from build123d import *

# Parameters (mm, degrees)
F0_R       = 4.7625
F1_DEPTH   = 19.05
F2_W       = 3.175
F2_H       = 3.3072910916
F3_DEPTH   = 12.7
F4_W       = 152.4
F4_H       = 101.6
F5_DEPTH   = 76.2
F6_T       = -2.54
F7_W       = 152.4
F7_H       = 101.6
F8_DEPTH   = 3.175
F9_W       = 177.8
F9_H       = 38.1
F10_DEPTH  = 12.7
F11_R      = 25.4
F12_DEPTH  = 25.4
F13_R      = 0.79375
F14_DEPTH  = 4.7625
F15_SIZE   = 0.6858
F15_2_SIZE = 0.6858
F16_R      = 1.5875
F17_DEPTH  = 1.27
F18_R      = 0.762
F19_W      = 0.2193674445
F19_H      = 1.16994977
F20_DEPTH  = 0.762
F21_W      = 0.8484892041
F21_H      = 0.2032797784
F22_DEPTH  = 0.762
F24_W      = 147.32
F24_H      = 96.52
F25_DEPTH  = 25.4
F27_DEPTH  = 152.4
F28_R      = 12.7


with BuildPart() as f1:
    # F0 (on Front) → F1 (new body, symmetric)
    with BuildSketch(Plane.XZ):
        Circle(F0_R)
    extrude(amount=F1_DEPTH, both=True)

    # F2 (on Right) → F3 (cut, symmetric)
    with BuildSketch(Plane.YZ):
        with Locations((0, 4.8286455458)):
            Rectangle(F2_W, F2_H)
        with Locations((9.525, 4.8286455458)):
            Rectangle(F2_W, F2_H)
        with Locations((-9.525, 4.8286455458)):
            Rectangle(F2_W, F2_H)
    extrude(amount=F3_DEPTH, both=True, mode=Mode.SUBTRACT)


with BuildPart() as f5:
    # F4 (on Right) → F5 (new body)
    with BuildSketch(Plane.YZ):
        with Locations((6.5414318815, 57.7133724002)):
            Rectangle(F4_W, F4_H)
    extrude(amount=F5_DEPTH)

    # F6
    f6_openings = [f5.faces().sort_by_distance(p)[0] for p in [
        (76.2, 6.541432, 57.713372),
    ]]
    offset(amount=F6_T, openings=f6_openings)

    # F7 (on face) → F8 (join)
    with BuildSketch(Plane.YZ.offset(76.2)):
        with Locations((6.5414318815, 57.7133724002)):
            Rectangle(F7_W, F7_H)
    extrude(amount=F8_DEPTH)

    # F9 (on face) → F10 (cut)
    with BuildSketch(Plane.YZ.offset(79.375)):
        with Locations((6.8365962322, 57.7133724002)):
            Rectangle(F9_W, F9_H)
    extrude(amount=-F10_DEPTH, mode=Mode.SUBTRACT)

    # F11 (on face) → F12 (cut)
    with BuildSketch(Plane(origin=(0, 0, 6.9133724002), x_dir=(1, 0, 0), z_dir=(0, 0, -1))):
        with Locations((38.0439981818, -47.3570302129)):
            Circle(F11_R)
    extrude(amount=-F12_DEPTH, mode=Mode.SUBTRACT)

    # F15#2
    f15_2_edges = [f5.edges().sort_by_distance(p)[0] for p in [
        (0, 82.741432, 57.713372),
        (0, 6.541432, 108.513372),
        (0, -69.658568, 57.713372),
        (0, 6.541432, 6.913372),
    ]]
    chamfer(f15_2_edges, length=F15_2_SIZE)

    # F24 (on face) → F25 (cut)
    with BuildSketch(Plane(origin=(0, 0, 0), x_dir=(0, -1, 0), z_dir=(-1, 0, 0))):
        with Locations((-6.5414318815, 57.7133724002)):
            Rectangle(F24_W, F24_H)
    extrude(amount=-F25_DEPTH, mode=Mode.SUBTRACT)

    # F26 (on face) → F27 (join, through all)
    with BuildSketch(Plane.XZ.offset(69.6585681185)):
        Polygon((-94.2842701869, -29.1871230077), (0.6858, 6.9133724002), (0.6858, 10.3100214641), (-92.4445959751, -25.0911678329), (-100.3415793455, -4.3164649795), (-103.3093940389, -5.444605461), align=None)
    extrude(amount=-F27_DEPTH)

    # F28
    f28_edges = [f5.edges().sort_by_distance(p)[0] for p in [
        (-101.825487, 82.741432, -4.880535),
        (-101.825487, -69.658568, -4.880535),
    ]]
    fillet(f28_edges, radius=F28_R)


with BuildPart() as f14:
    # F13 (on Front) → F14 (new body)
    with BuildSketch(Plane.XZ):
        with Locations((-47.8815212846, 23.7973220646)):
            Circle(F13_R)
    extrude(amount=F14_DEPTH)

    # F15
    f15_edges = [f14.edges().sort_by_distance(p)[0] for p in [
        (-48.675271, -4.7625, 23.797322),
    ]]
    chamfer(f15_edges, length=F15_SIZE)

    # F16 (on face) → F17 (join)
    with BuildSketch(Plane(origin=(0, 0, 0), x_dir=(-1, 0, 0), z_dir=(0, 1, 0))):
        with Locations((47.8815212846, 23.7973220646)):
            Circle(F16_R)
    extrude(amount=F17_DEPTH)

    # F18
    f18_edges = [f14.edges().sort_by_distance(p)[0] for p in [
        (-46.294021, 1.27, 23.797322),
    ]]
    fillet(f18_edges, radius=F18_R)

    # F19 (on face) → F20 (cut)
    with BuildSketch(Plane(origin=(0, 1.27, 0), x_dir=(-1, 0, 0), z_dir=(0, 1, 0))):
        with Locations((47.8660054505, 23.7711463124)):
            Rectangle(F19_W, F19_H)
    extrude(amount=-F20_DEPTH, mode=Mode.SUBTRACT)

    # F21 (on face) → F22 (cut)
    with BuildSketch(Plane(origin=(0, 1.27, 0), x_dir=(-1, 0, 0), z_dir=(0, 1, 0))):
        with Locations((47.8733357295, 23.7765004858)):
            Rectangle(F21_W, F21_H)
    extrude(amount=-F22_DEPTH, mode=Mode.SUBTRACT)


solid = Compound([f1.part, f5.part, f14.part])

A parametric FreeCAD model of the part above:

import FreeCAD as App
import Part
import Sketcher

V = App.Vector
Q = App.Units.Quantity


def edges_at(feature, points):
    """Names of the edges that pass closest to the given points."""
    edges = feature.Shape.Edges
    near = lambda p: min(range(len(edges)), key=lambda i: edges[i].distToShape(Part.Vertex(*p))[0])
    return sorted({f"Edge{near(p) + 1}" for p in points})


def faces_at(feature, points):
    """Names of the faces that lie closest to the given points."""
    faces = feature.Shape.Faces
    near = lambda p: min(range(len(faces)), key=lambda i: faces[i].distToShape(Part.Vertex(*p))[0])
    return sorted({f"Face{near(p) + 1}" for p in points})

doc = App.newDocument("Part")
body = doc.addObject("PartDesign::Body", "Body")

sketch1 = body.newObject("Sketcher::SketchObject", "Sketch")
sketch1.AttachmentSupport = (doc.getObject("XZ_Plane"), [""])
sketch1.MapMode = "FlatFace"
sketch1.addGeometry(Part.Circle(V(0, 0, 0), V(0, 0, 1), 4.8), False)
sketch1.addConstraint([
    Sketcher.Constraint("Coincident", 0, 3, -1, 1),
    Sketcher.Constraint("Diameter", 0, Q("0.375 in")),
])
pad1 = body.newObject("PartDesign::Pad", "Pad")
pad1.Profile = sketch1
pad1.Length = Q("1.5 in")
pad1.Midplane = True

sketch2 = body.newObject("Sketcher::SketchObject", "Sketch001")
sketch2.AttachmentSupport = (doc.getObject("YZ_Plane"), [""])
sketch2.MapMode = "FlatFace"
sketch2.addGeometry([
    Part.LineSegment(V(-1.6, 6.5, 0), V(-1.6, 3.2, 0)),
    Part.LineSegment(V(-1.6, 3.2, 0), V(1.6, 3.2, 0)),
    Part.LineSegment(V(1.6, 3.2, 0), V(1.6, 6.5, 0)),
    Part.LineSegment(V(1.6, 6.5, 0), V(-1.6, 6.5, 0)),
    Part.LineSegment(V(7.9, 6.5, 0), V(7.9, 3.2, 0)),
    Part.LineSegment(V(7.9, 3.2, 0), V(11.1, 3.2, 0)),
    Part.LineSegment(V(11.1, 3.2, 0), V(11.1, 6.5, 0)),
    Part.LineSegment(V(11.1, 6.5, 0), V(7.9, 6.5, 0)),
    Part.LineSegment(V(-11.1, 6.5, 0), V(-11.1, 3.2, 0)),
    Part.LineSegment(V(-11.1, 3.2, 0), V(-7.9, 3.2, 0)),
    Part.LineSegment(V(-7.9, 3.2, 0), V(-7.9, 6.5, 0)),
    Part.LineSegment(V(-7.9, 6.5, 0), V(-11.1, 6.5, 0)),
], False)
sketch2.addConstraint([
    Sketcher.Constraint("Coincident", 0, 2, 1, 1),
    Sketcher.Constraint("Coincident", 1, 2, 2, 1),
    Sketcher.Constraint("Coincident", 2, 2, 3, 1),
    Sketcher.Constraint("Coincident", 3, 2, 0, 1),
    Sketcher.Constraint("Coincident", 4, 2, 5, 1),
    Sketcher.Constraint("Coincident", 5, 2, 6, 1),
    Sketcher.Constraint("Coincident", 6, 2, 7, 1),
    Sketcher.Constraint("Coincident", 7, 2, 4, 1),
    Sketcher.Constraint("Coincident", 8, 2, 9, 1),
    Sketcher.Constraint("Coincident", 9, 2, 10, 1),
    Sketcher.Constraint("Coincident", 10, 2, 11, 1),
    Sketcher.Constraint("Coincident", 11, 2, 8, 1),
    Sketcher.Constraint("Vertical", 0),
    Sketcher.Constraint("Horizontal", 1),
    Sketcher.Constraint("Vertical", 2),
    Sketcher.Constraint("Horizontal", 3),
    Sketcher.Constraint("Vertical", 4),
    Sketcher.Constraint("Horizontal", 5),
    Sketcher.Constraint("Vertical", 6),
    Sketcher.Constraint("Horizontal", 7),
    Sketcher.Constraint("Vertical", 8),
    Sketcher.Constraint("Horizontal", 9),
    Sketcher.Constraint("Vertical", 10),
    Sketcher.Constraint("Horizontal", 11),
    Sketcher.Constraint("Symmetric", 5, 2, 8, 2, -2),
    Sketcher.Constraint("Symmetric", 7, 2, 10, 2, -2),
    Sketcher.Constraint("Horizontal", 1, 2, 4, 2),
    Sketcher.Constraint("Horizontal", 3, 2, 6, 2),
    Sketcher.Constraint("Equal", 3, 5),
    Sketcher.Constraint("DistanceX", 0, 2, 5, 2, Q("0.5 in")),
    Sketcher.Constraint("DistanceX", 8, 2, 1, 2, Q("0.5 in")),
    Sketcher.Constraint("DistanceX", 1, 1, 1, 2, Q("0.125 in")),
    Sketcher.Constraint("DistanceY", -1, 1, 0, 2, Q("0.125 in")),
    Sketcher.Constraint("DistanceY", 0, 2, 0, 1, Q("3.307291 mm")),
])
pocket1 = body.newObject("PartDesign::Pocket", "Pocket")
pocket1.Profile = sketch2
pocket1.Length = Q("1 in")
pocket1.Midplane = True
body2 = doc.addObject("PartDesign::Body", "Body001")

sketch3 = body2.newObject("Sketcher::SketchObject", "Sketch002")
sketch3.AttachmentSupport = (doc.getObject("YZ_Plane001"), [""])
sketch3.MapMode = "FlatFace"
sketch3.addGeometry([
    Part.LineSegment(V(-70, 109, 0), V(-70, 7, 0)),
    Part.LineSegment(V(-70, 7, 0), V(83, 7, 0)),
    Part.LineSegment(V(83, 7, 0), V(83, 109, 0)),
    Part.LineSegment(V(83, 109, 0), V(-70, 109, 0)),
], False)
sketch3.addConstraint([
    Sketcher.Constraint("Coincident", 0, 2, 1, 1),
    Sketcher.Constraint("Coincident", 1, 2, 2, 1),
    Sketcher.Constraint("Coincident", 2, 2, 3, 1),
    Sketcher.Constraint("Coincident", 3, 2, 0, 1),
    Sketcher.Constraint("Vertical", 0),
    Sketcher.Constraint("Horizontal", 1),
    Sketcher.Constraint("Vertical", 2),
    Sketcher.Constraint("Horizontal", 3),
    Sketcher.Constraint("DistanceX", 1, 1, 1, 2, Q("6 in")),
    Sketcher.Constraint("DistanceY", 0, 2, 0, 1, Q("4 in")),
    Sketcher.Constraint("DistanceX", 0, 2, -1, 1, Q("69.658568 mm")),
    Sketcher.Constraint("DistanceY", -1, 1, 0, 2, Q("6.913372 mm")),
])
pad2 = body2.newObject("PartDesign::Pad", "Pad001")
pad2.Profile = sketch3
pad2.Length = Q("3 in")
doc.recompute()

thickness = body2.newObject("PartDesign::Thickness", "Thickness")
thickness.Base = (pad2, faces_at(pad2, [(76.2, 6.541, 57.713)]))
thickness.Value = Q("0.1 in")
thickness.Reversed = True
thickness.Join = "Arc"

sketch4 = body2.newObject("Sketcher::SketchObject", "Sketch003")
sketch4.AttachmentSupport = (doc.getObject("YZ_Plane001"), [""])
sketch4.MapMode = "FlatFace"
sketch4.AttachmentOffset = App.Placement(V(0, 0, 3 * 25.4), App.Rotation())
sketch4.addGeometry([
    Part.LineSegment(V(-70, 109, 0), V(-70, 7, 0)),
    Part.LineSegment(V(-70, 7, 0), V(83, 7, 0)),
    Part.LineSegment(V(83, 7, 0), V(83, 109, 0)),
    Part.LineSegment(V(83, 109, 0), V(-70, 109, 0)),
], False)
sketch4.addConstraint([
    Sketcher.Constraint("Coincident", 0, 2, 1, 1),
    Sketcher.Constraint("Coincident", 1, 2, 2, 1),
    Sketcher.Constraint("Coincident", 2, 2, 3, 1),
    Sketcher.Constraint("Coincident", 3, 2, 0, 1),
    Sketcher.Constraint("Vertical", 0),
    Sketcher.Constraint("Horizontal", 1),
    Sketcher.Constraint("Vertical", 2),
    Sketcher.Constraint("Horizontal", 3),
    Sketcher.Constraint("DistanceX", 1, 1, 1, 2, Q("6 in")),
    Sketcher.Constraint("DistanceY", 0, 2, 0, 1, Q("4 in")),
    Sketcher.Constraint("DistanceX", 0, 2, -1, 1, Q("69.658568 mm")),
    Sketcher.Constraint("DistanceY", -1, 1, 0, 2, Q("6.913372 mm")),
])
pad3 = body2.newObject("PartDesign::Pad", "Pad002")
pad3.Profile = sketch4
pad3.Length = Q("0.125 in")

sketch5 = body2.newObject("Sketcher::SketchObject", "Sketch004")
sketch5.AttachmentSupport = (doc.getObject("YZ_Plane001"), [""])
sketch5.MapMode = "FlatFace"
sketch5.AttachmentOffset = App.Placement(V(0, 0, 3.125 * 25.4), App.Rotation())
sketch5.addGeometry([
    Part.LineSegment(V(-82, 77, 0), V(-82, 39, 0)),
    Part.LineSegment(V(-82, 39, 0), V(96, 39, 0)),
    Part.LineSegment(V(96, 39, 0), V(96, 77, 0)),
    Part.LineSegment(V(96, 77, 0), V(-82, 77, 0)),
], False)
sketch5.addConstraint([
    Sketcher.Constraint("Coincident", 0, 2, 1, 1),
    Sketcher.Constraint("Coincident", 1, 2, 2, 1),
    Sketcher.Constraint("Coincident", 2, 2, 3, 1),
    Sketcher.Constraint("Coincident", 3, 2, 0, 1),
    Sketcher.Constraint("Vertical", 0),
    Sketcher.Constraint("Horizontal", 1),
    Sketcher.Constraint("Vertical", 2),
    Sketcher.Constraint("Horizontal", 3),
    Sketcher.Constraint("DistanceX", 1, 1, 1, 2, Q("7 in")),
    Sketcher.Constraint("DistanceY", 0, 2, 0, 1, Q("1.5 in")),
    Sketcher.Constraint("DistanceX", 0, 2, -1, 1, Q("82.063404 mm")),
    Sketcher.Constraint("DistanceY", -1, 1, 0, 2, Q("38.663372 mm")),
])
pocket2 = body2.newObject("PartDesign::Pocket", "Pocket001")
pocket2.Profile = sketch5
pocket2.Length = Q("0.5 in")

sketch6 = body2.newObject("Sketcher::SketchObject", "Sketch005")
sketch6.AttachmentSupport = (doc.getObject("XY_Plane001"), [""])
sketch6.MapMode = "FlatFace"
sketch6.AttachmentOffset = App.Placement(V(0, 0, 6.913372), App.Rotation())
sketch6.addGeometry(Part.Circle(V(38, 47, 0), V(0, 0, 1), 25), False)
sketch6.addConstraint([
    Sketcher.Constraint("Diameter", 0, Q("2 in")),
    Sketcher.Constraint("DistanceX", -1, 1, 0, 3, Q("38.043998 mm")),
    Sketcher.Constraint("DistanceY", -1, 1, 0, 3, Q("47.35703 mm")),
])
pocket3 = body2.newObject("PartDesign::Pocket", "Pocket002")
pocket3.Profile = sketch6
pocket3.Length = Q("1 in")
pocket3.Reversed = True
doc.recompute()

chamfer = body2.newObject("PartDesign::Chamfer", "Chamfer")
chamfer.Base = (pocket3, edges_at(pocket3, [
    (0, 82.741, 57.713),
    (0, 6.541, 108.513),
    (0, -69.659, 57.713),
    (0, 6.541, 6.913),
]))
chamfer.Size = Q("0.027 in")

sketch7 = body2.newObject("Sketcher::SketchObject", "Sketch006")
sketch7.AttachmentSupport = (doc.getObject("YZ_Plane001"), [""])
sketch7.MapMode = "FlatFace"
sketch7.addGeometry([
    Part.LineSegment(V(80, 106, 0), V(80, 9, 0)),
    Part.LineSegment(V(80, 9, 0), V(-67, 9, 0)),
    Part.LineSegment(V(-67, 9, 0), V(-67, 106, 0)),
    Part.LineSegment(V(-67, 106, 0), V(80, 106, 0)),
], False)
sketch7.addConstraint([
    Sketcher.Constraint("Coincident", 0, 2, 1, 1),
    Sketcher.Constraint("Coincident", 1, 2, 2, 1),
    Sketcher.Constraint("Coincident", 2, 2, 3, 1),
    Sketcher.Constraint("Coincident", 3, 2, 0, 1),
    Sketcher.Constraint("Vertical", 0),
    Sketcher.Constraint("Horizontal", 1),
    Sketcher.Constraint("Vertical", 2),
    Sketcher.Constraint("Horizontal", 3),
    Sketcher.Constraint("DistanceX", 1, 2, 1, 1, Q("5.8 in")),
    Sketcher.Constraint("DistanceY", 0, 2, 0, 1, Q("3.8 in")),
    Sketcher.Constraint("DistanceX", -1, 1, 0, 2, Q("80.201432 mm")),
    Sketcher.Constraint("DistanceY", -1, 1, 0, 2, Q("9.453372 mm")),
])
pocket4 = body2.newObject("PartDesign::Pocket", "Pocket003")
pocket4.Profile = sketch7
pocket4.Length = Q("1 in")
pocket4.Reversed = True

sketch8 = body2.newObject("Sketcher::SketchObject", "Sketch007")
sketch8.AttachmentSupport = (doc.getObject("XZ_Plane001"), [""])
sketch8.MapMode = "FlatFace"
sketch8.AttachmentOffset = App.Placement(V(0, 0, 69.658568), App.Rotation())
sketch8.addGeometry([
    Part.LineSegment(V(-94.3, -29.2, 0), V(0.7, 6.9, 0)),
    Part.LineSegment(V(0.7, 6.9, 0), V(0.7, 10.3, 0)),
    Part.LineSegment(V(0.7, 10.3, 0), V(-92.4, -25.1, 0)),
    Part.LineSegment(V(-92.4, -25.1, 0), V(-100.3, -4.3, 0)),
    Part.LineSegment(V(-100.3, -4.3, 0), V(-103.3, -5.4, 0)),
    Part.LineSegment(V(-103.3, -5.4, 0), V(-94.3, -29.2, 0)),
], False)
sketch8.addConstraint([
    Sketcher.Constraint("Coincident", 0, 2, 1, 1),
    Sketcher.Constraint("Coincident", 1, 2, 2, 1),
    Sketcher.Constraint("Coincident", 2, 2, 3, 1),
    Sketcher.Constraint("Coincident", 3, 2, 4, 1),
    Sketcher.Constraint("Coincident", 4, 2, 5, 1),
    Sketcher.Constraint("Coincident", 5, 2, 0, 1),
    Sketcher.Constraint("Vertical", 1),
    Sketcher.Constraint("Parallel", 0, 2),
    Sketcher.Constraint("Perpendicular", 2, 3),
    Sketcher.Constraint("Perpendicular", 3, 4),
    Sketcher.Constraint("Perpendicular", 4, 5),
    Sketcher.Constraint("Distance", 0, Q("4 in")),
    Sketcher.Constraint("Distance", 5, Q("1 in")),
    Sketcher.Constraint("Distance", 3, Q("0.875 in")),
    Sketcher.Constraint("Distance", 4, Q("0.125 in")),
    Sketcher.Constraint("DistanceX", -1, 1, 0, 2, Q("0.027 in")),
    Sketcher.Constraint("DistanceY", 1, 1, 1, 2, Q("3.396649 mm")),
    Sketcher.Constraint("DistanceY", -1, 1, 1, 2, Q("10.310021 mm")),
])
pad4 = body2.newObject("PartDesign::Pad", "Pad003")
pad4.Profile = sketch8
pad4.Length = Q("6 in")
pad4.Reversed = True
doc.recompute()

fillet = body2.newObject("PartDesign::Fillet", "Fillet")
fillet.Base = (pad4, edges_at(pad4, [(-101.825, 82.741, -4.881), (-101.825, -69.659, -4.881)]))
fillet.Radius = Q("0.5 in")
body3 = doc.addObject("PartDesign::Body", "Body002")

sketch9 = body3.newObject("Sketcher::SketchObject", "Sketch008")
sketch9.AttachmentSupport = (doc.getObject("XZ_Plane002"), [""])
sketch9.MapMode = "FlatFace"
sketch9.addGeometry(Part.Circle(V(-47.9, 23.8, 0), V(0, 0, 1), 0.8), False)
sketch9.addConstraint([
    Sketcher.Constraint("Diameter", 0, Q("0.0625 in")),
    Sketcher.Constraint("DistanceX", 0, 3, -1, 1, Q("47.881521 mm")),
    Sketcher.Constraint("DistanceY", -1, 1, 0, 3, Q("23.797322 mm")),
])
pad5 = body3.newObject("PartDesign::Pad", "Pad004")
pad5.Profile = sketch9
pad5.Length = Q("0.1875 in")
doc.recompute()

chamfer2 = body3.newObject("PartDesign::Chamfer", "Chamfer001")
chamfer2.Base = (pad5, edges_at(pad5, [(-48.675, -4.763, 23.797)]))
chamfer2.Size = Q("0.027 in")

sketch10 = body3.newObject("Sketcher::SketchObject", "Sketch009")
sketch10.AttachmentSupport = (doc.getObject("XZ_Plane002"), [""])
sketch10.MapMode = "FlatFace"
sketch10.addGeometry(Part.Circle(V(-47.9, 23.8, 0), V(0, 0, 1), 1.6), False)
sketch10.addConstraint([
    Sketcher.Constraint("Diameter", 0, Q("0.125 in")),
    Sketcher.Constraint("DistanceX", 0, 3, -1, 1, Q("47.881521 mm")),
    Sketcher.Constraint("DistanceY", -1, 1, 0, 3, Q("23.797322 mm")),
])
pad6 = body3.newObject("PartDesign::Pad", "Pad005")
pad6.Profile = sketch10
pad6.Length = Q("0.05 in")
pad6.Reversed = True
doc.recompute()

fillet2 = body3.newObject("PartDesign::Fillet", "Fillet001")
fillet2.Base = (pad6, edges_at(pad6, [(-46.294, 1.27, 23.797)]))
fillet2.Radius = Q("0.03 in")

sketch11 = body3.newObject("Sketcher::SketchObject", "Sketch010")
sketch11.AttachmentSupport = (doc.getObject("XZ_Plane002"), [""])
sketch11.MapMode = "FlatFace"
sketch11.AttachmentOffset = App.Placement(V(0, 0, -0.05 * 25.4), App.Rotation())
sketch11.addGeometry([
    Part.LineSegment(V(-47.76, 24.36, 0), V(-47.76, 23.19, 0)),
    Part.LineSegment(V(-47.76, 23.19, 0), V(-47.98, 23.19, 0)),
    Part.LineSegment(V(-47.98, 23.19, 0), V(-47.98, 24.36, 0)),
    Part.LineSegment(V(-47.98, 24.36, 0), V(-47.76, 24.36, 0)),
], False)
sketch11.addConstraint([
    Sketcher.Constraint("Coincident", 0, 2, 1, 1),
    Sketcher.Constraint("Coincident", 1, 2, 2, 1),
    Sketcher.Constraint("Coincident", 2, 2, 3, 1),
    Sketcher.Constraint("Coincident", 3, 2, 0, 1),
    Sketcher.Constraint("Vertical", 0),
    Sketcher.Constraint("Horizontal", 1),
    Sketcher.Constraint("Vertical", 2),
    Sketcher.Constraint("Horizontal", 3),
    Sketcher.Constraint("DistanceY", 0, 2, 0, 1, Q("1.16995 mm")),
    Sketcher.Constraint("DistanceX", 1, 2, 1, 1, Q("0.219367 mm")),
    Sketcher.Constraint("DistanceX", 0, 2, -1, 1, Q("47.756322 mm")),
    Sketcher.Constraint("DistanceY", -1, 1, 0, 2, Q("23.186171 mm")),
])
pocket5 = body3.newObject("PartDesign::Pocket", "Pocket004")
pocket5.Profile = sketch11
pocket5.Length = Q("0.03 in")
pocket5.Reversed = True

sketch12 = body3.newObject("Sketcher::SketchObject", "Sketch011")
sketch12.AttachmentSupport = (doc.getObject("XZ_Plane002"), [""])
sketch12.MapMode = "FlatFace"
sketch12.AttachmentOffset = App.Placement(V(0, 0, -0.05 * 25.4), App.Rotation())
sketch12.addGeometry([
    Part.LineSegment(V(-47.45, 23.88, 0), V(-47.45, 23.67, 0)),
    Part.LineSegment(V(-47.45, 23.67, 0), V(-48.3, 23.67, 0)),
    Part.LineSegment(V(-48.3, 23.67, 0), V(-48.3, 23.88, 0)),
    Part.LineSegment(V(-48.3, 23.88, 0), V(-47.45, 23.88, 0)),
], False)
sketch12.addConstraint([
    Sketcher.Constraint("Coincident", 0, 2, 1, 1),
    Sketcher.Constraint("Coincident", 1, 2, 2, 1),
    Sketcher.Constraint("Coincident", 2, 2, 3, 1),
    Sketcher.Constraint("Coincident", 3, 2, 0, 1),
    Sketcher.Constraint("Vertical", 0),
    Sketcher.Constraint("Horizontal", 1),
    Sketcher.Constraint("Vertical", 2),
    Sketcher.Constraint("Horizontal", 3),
    Sketcher.Constraint("DistanceX", 1, 2, 1, 1, Q("0.848489 mm")),
    Sketcher.Constraint("DistanceY", 0, 2, 0, 1, Q("0.20328 mm")),
    Sketcher.Constraint("DistanceX", 0, 2, -1, 1, Q("47.449091 mm")),
    Sketcher.Constraint("DistanceY", -1, 1, 0, 2, Q("23.674861 mm")),
])
pocket6 = body3.newObject("PartDesign::Pocket", "Pocket005")
pocket6.Profile = sketch12
pocket6.Length = Q("0.03 in")
pocket6.Reversed = True

doc.recompute()
